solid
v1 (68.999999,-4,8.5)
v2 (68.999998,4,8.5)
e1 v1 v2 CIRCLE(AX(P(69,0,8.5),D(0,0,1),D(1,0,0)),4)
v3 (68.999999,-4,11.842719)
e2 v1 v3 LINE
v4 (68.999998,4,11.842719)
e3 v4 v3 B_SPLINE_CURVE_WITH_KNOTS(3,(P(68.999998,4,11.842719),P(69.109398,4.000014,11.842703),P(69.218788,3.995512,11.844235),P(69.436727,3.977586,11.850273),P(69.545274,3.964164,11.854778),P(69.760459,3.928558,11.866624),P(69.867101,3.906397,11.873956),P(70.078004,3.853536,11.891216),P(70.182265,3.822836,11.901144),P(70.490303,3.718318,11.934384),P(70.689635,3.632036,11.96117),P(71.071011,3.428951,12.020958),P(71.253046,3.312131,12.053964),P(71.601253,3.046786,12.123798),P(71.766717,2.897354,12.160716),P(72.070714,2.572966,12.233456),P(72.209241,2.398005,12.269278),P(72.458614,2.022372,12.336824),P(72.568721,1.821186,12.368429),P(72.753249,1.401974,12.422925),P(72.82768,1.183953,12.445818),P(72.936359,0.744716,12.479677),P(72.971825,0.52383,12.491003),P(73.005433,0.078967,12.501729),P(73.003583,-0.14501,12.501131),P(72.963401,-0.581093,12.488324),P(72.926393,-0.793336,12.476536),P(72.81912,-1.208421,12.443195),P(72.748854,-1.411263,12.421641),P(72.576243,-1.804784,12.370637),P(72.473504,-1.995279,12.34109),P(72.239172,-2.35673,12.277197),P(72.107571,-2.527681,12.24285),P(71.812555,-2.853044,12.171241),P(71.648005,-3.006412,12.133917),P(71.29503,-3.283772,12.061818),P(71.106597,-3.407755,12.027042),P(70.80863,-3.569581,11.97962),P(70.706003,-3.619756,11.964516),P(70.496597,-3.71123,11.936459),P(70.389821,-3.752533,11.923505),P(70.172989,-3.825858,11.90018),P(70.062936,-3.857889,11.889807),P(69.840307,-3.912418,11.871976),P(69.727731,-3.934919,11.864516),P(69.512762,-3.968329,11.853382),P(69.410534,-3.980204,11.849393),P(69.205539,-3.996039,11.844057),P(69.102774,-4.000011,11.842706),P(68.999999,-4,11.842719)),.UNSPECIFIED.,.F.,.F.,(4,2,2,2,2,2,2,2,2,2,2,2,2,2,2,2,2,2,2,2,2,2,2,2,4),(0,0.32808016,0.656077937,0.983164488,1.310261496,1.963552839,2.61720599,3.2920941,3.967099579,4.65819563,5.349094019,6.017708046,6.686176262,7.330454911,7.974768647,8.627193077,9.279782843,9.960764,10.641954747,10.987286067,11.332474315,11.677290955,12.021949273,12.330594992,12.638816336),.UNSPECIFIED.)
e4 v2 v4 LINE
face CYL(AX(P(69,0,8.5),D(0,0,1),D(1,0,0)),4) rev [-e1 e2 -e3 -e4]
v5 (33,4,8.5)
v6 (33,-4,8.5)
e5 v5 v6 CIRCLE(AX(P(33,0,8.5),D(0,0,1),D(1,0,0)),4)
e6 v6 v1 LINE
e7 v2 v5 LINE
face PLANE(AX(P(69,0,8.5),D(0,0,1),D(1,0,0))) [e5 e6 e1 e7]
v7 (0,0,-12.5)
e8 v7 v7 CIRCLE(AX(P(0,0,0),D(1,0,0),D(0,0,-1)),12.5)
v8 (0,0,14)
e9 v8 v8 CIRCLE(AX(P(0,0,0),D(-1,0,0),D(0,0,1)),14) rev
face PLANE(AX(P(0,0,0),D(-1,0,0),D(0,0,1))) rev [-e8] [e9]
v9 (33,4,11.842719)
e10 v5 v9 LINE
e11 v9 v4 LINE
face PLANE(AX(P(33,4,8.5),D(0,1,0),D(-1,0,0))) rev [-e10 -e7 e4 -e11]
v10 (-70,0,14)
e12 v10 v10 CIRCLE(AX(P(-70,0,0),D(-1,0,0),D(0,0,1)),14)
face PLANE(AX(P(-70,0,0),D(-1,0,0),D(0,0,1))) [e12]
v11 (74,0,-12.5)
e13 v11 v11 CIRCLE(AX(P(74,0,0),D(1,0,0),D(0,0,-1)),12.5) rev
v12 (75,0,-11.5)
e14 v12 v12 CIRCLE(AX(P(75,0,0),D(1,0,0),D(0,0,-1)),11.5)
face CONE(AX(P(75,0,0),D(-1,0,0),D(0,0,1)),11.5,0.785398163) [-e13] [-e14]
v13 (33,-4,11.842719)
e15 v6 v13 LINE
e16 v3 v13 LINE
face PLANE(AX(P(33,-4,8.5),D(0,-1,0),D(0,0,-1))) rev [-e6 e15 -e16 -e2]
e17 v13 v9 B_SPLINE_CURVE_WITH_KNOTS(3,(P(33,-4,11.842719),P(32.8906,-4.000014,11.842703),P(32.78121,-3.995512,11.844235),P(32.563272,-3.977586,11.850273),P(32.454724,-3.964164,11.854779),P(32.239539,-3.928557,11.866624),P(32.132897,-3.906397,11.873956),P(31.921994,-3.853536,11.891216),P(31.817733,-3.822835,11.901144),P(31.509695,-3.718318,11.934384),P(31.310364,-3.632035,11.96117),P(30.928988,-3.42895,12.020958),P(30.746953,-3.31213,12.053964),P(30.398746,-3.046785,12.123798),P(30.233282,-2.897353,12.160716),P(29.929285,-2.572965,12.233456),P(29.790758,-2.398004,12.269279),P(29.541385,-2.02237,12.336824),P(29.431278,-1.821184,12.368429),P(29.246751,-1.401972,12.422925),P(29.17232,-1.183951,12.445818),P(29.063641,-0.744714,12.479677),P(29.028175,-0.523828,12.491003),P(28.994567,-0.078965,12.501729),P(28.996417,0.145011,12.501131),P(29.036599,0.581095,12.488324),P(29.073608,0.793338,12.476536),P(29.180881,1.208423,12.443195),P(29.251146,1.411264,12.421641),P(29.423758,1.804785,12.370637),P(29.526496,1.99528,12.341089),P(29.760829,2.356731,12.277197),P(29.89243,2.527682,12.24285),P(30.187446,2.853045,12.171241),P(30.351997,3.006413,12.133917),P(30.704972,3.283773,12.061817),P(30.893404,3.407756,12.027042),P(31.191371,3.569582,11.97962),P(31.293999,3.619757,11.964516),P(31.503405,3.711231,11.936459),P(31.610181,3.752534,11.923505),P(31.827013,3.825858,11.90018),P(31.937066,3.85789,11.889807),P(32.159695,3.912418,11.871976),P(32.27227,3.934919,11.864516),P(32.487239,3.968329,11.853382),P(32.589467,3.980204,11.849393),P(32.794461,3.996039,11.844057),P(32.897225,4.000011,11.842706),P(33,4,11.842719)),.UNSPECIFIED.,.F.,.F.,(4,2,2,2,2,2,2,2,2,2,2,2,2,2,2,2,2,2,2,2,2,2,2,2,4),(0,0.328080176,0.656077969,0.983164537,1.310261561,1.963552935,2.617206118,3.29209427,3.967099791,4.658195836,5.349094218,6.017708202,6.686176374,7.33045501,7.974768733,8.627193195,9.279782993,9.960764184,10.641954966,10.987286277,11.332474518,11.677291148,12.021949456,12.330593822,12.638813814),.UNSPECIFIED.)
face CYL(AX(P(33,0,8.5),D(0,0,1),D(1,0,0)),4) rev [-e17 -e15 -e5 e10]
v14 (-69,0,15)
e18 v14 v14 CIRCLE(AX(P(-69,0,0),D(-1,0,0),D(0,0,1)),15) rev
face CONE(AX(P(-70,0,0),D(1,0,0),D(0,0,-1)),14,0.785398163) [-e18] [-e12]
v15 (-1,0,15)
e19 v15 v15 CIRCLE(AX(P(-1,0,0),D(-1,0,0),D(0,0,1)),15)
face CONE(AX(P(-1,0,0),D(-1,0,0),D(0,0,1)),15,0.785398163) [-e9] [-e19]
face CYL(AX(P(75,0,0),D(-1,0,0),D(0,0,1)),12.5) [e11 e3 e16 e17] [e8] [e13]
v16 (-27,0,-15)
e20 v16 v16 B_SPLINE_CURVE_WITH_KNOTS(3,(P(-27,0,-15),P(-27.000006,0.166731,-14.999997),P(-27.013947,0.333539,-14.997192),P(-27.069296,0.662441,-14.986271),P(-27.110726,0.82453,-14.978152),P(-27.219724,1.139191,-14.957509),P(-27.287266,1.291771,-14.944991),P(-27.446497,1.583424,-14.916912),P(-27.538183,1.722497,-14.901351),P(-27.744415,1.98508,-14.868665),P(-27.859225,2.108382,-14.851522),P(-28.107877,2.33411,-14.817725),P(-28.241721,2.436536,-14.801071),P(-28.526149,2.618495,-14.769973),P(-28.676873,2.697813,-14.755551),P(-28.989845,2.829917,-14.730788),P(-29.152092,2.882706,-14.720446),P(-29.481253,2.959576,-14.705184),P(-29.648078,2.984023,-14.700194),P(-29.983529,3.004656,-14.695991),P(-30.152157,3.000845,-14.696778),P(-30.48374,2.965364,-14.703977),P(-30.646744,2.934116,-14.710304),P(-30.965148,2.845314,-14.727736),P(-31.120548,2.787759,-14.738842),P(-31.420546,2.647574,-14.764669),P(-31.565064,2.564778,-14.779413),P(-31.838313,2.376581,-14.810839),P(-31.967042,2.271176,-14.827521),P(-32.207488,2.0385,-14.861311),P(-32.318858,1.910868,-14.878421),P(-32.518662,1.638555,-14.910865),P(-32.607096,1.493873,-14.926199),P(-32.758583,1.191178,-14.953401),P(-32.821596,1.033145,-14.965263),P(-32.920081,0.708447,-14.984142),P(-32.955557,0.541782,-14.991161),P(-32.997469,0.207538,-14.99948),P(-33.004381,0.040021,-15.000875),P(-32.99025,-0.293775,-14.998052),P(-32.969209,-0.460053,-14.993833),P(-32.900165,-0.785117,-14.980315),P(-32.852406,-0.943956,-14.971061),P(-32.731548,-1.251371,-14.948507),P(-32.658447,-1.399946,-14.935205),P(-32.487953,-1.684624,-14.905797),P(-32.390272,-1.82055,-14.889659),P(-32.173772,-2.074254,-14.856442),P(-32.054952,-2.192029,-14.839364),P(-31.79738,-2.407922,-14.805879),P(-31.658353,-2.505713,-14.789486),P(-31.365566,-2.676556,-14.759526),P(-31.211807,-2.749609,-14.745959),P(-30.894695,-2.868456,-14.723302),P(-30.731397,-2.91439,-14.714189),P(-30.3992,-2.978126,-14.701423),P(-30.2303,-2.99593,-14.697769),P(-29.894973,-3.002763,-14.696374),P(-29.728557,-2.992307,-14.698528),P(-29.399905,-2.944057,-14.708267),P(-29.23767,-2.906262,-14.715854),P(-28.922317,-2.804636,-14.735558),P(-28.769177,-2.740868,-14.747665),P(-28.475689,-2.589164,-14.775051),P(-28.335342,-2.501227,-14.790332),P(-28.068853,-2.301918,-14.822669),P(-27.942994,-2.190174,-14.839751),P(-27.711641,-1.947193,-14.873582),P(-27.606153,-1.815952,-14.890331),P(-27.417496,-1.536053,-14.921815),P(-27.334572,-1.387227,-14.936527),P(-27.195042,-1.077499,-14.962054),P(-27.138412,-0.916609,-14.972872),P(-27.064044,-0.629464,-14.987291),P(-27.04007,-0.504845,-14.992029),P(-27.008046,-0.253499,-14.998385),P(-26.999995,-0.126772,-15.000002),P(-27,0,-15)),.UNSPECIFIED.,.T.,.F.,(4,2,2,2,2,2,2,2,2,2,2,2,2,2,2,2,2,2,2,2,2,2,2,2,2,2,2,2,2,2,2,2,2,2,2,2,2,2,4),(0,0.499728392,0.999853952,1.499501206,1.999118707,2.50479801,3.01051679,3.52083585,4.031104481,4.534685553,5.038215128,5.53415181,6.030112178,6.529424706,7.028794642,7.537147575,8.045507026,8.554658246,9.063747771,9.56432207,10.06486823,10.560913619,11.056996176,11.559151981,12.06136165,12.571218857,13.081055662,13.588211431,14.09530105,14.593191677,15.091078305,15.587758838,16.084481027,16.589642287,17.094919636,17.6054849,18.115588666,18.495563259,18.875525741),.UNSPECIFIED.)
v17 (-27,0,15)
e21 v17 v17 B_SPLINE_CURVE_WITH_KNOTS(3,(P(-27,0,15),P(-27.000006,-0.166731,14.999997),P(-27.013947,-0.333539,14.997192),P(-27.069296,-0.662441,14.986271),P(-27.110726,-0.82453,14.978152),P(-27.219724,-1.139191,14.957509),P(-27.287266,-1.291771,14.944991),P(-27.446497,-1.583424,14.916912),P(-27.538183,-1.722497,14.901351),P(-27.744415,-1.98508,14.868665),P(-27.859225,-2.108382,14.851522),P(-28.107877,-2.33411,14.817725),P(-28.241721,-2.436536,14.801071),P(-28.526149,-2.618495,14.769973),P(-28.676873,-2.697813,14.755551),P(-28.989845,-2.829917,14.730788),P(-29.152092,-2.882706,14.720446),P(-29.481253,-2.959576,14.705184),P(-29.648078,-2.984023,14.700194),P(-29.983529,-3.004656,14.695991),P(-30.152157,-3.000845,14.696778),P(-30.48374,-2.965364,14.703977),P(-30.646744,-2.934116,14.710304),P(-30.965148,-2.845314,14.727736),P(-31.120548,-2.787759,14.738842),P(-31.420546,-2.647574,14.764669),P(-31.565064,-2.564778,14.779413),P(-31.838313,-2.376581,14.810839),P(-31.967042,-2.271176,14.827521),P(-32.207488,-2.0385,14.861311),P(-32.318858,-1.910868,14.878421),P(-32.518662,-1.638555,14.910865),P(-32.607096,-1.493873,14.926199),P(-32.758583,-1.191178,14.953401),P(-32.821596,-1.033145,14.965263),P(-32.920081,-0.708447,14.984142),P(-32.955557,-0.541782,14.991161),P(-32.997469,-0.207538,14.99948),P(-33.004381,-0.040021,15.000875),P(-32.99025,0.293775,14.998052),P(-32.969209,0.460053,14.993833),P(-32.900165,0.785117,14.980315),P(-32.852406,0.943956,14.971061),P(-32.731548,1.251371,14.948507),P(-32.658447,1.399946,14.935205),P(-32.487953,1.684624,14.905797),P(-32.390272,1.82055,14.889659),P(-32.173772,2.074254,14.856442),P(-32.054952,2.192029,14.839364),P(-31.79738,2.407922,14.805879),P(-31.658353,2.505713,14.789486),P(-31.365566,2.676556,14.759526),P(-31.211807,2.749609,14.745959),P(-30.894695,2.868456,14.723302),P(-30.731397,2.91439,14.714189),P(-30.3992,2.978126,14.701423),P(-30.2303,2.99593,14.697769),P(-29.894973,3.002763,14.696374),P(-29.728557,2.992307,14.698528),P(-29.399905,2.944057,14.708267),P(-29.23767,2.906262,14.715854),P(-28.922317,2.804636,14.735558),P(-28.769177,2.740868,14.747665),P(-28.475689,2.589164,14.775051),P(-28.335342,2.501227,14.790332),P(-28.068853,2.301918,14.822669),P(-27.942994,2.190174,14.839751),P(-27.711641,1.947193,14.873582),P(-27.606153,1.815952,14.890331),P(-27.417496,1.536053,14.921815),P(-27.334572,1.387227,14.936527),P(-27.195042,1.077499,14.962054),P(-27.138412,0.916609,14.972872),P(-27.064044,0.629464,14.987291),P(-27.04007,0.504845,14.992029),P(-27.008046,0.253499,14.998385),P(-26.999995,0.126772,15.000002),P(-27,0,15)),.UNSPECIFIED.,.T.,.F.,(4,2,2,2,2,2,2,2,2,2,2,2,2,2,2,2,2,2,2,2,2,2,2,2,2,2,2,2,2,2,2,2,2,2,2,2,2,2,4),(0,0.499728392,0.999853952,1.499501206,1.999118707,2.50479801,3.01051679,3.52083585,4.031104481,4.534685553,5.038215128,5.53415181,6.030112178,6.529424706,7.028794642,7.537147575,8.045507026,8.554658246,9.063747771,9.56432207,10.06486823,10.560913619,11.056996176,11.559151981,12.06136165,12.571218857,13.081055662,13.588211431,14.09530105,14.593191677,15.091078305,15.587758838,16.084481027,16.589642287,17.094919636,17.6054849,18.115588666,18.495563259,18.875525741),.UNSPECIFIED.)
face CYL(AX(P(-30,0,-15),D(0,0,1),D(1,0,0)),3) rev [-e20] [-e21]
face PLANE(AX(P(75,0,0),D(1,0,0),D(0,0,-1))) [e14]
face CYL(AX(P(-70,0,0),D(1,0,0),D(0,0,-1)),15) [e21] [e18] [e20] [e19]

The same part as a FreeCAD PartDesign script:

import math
import FreeCAD as App
import Part
import Sketcher


def edges_at(feature, points):
    """Names of the edges that pass closest to the given points."""
    edges = feature.Shape.Edges
    near = lambda p: min(range(len(edges)), key=lambda i: edges[i].distToShape(Part.Vertex(*p))[0])
    return sorted({f"Edge{near(p) + 1}" for p in points})

doc = App.newDocument("Part")
params = doc.addObject("Spreadsheet::Sheet", "Params")
for row, (alias, value) in enumerate([
    ("sketch1_diameter", "25 mm"),
    ("pad1_length", "75 mm"),
    ("sketch2_diameter", "30 mm"),
    ("pad2_length", "70 mm"),
    ("chamfer_size", "1 mm"),
    ("sketch3_radius", "4 mm"),
    ("sketch3_width", "35.999998 mm"),
    ("pocket1_length", "4 mm"),
    ("sketch4_diameter", "6 mm"),
], start=1):
    params.set(f"A{row}", alias)
    params.set(f"B{row}", "=" + value)
    params.setAlias(f"B{row}", alias)

body = doc.addObject("PartDesign::Body", "Body")

# Sketch on YZ plane
sketch1 = doc.addObject("Sketcher::SketchObject", "Sketch")
body.addObject(sketch1)
sketch1.AttachmentSupport = (doc.YZ_Plane, [""])
sketch1.MapMode = "FlatFace"
sketch1.addGeometry(Part.Circle(App.Vector(0, 0, 0), App.Vector(0, 0, 1), 12), False)
sketch1.addConstraint([
    Sketcher.Constraint("Coincident", 0, 3, -1, 1),
    Sketcher.Constraint("Diameter", 0, 25.0),
])
sketch1.setExpression("Constraints[1]", "Params.sketch1_diameter")
pad1 = doc.addObject("PartDesign::Pad", "Pad")
body.addObject(pad1)
pad1.Profile = sketch1
pad1.setExpression("Length", "Params.pad1_length")

# Sketch on YZ plane
sketch2 = doc.addObject("Sketcher::SketchObject", "Sketch001")
body.addObject(sketch2)
sketch2.AttachmentSupport = (doc.YZ_Plane, [""])
sketch2.MapMode = "FlatFace"
sketch2.addGeometry(Part.Circle(App.Vector(0, 0, 0), App.Vector(0, 0, 1), 15), False)
sketch2.addConstraint([
    Sketcher.Constraint("Coincident", 0, 3, -1, 1),
    Sketcher.Constraint("Diameter", 0, 30.0),
])
sketch2.setExpression("Constraints[1]", "Params.sketch2_diameter")
pad2 = doc.addObject("PartDesign::Pad", "Pad001")
body.addObject(pad2)
pad2.Profile = sketch2
pad2.setExpression("Length", "Params.pad2_length")
pad2.Reversed = True
doc.recompute()

chamfer = doc.addObject("PartDesign::Chamfer", "Chamfer")
body.addObject(chamfer)
chamfer.Base = (pad2, edges_at(pad2, [(75, 0, 12.5), (0, 0, -15), (-70, 0, -15)]))
chamfer.setExpression("Size", "Params.chamfer_size")

# Sketch on XY plane
sketch3 = doc.addObject("Sketcher::SketchObject", "Sketch002")
body.addObject(sketch3)
sketch3.AttachmentSupport = (doc.XY_Plane, [""])
sketch3.MapMode = "FlatFace"
sketch3.AttachmentOffset = App.Placement(App.Vector(0, 0, 12.5), App.Rotation())
sketch3.addGeometry([
    Part.LineSegment(App.Vector(69, 4, 0), App.Vector(33, 4, 0)),
    Part.ArcOfCircle(Part.Circle(App.Vector(33, 0, 0), App.Vector(0, 0, 1), 4), math.radians(90), math.radians(270)),
    Part.LineSegment(App.Vector(33, -4, 0), App.Vector(69, -4, 0)),
    Part.ArcOfCircle(Part.Circle(App.Vector(69, 0, 0), App.Vector(0, 0, 1), 4), math.radians(-90), math.radians(90)),
], False)
sketch3.addConstraint([
    Sketcher.Constraint("Tangent", 0, 2, 1, 1),
    Sketcher.Constraint("Tangent", 1, 2, 2, 1),
    Sketcher.Constraint("Tangent", 2, 2, 3, 1),
    Sketcher.Constraint("Tangent", 3, 2, 0, 1),
    Sketcher.Constraint("Horizontal", 0),
    Sketcher.Constraint("Horizontal", 2),
    Sketcher.Constraint("PointOnObject", 1, 3, -1),
    Sketcher.Constraint("Radius", 1, 4.0),
    Sketcher.Constraint("DistanceX", 0, 2, 0, 1, 35.999998),
    Sketcher.Constraint("DistanceX", -1, 1, 1, 3, 33.0),
])
sketch3.setExpression("Constraints[7]", "Params.sketch3_radius")
sketch3.setExpression("Constraints[8]", "Params.sketch3_width")
pocket1 = doc.addObject("PartDesign::Pocket", "Pocket")
body.addObject(pocket1)
pocket1.Profile = sketch3
pocket1.setExpression("Length", "Params.pocket1_length")

# Sketch on XY plane
sketch4 = doc.addObject("Sketcher::SketchObject", "Sketch003")
body.addObject(sketch4)
sketch4.AttachmentSupport = (doc.XY_Plane, [""])
sketch4.MapMode = "FlatFace"
sketch4.addGeometry(Part.Circle(App.Vector(-30, 0, 0), App.Vector(0, 0, 1), 3), False)
sketch4.addConstraint([
    Sketcher.Constraint("PointOnObject", 0, 3, -1),
    Sketcher.Constraint("Diameter", 0, 6.0),
    Sketcher.Constraint("DistanceX", 0, 3, -1, 1, 30.0),
])
sketch4.setExpression("Constraints[1]", "Params.sketch4_diameter")
pocket2 = doc.addObject("PartDesign::Pocket", "Pocket001")
body.addObject(pocket2)
pocket2.Profile = sketch4
pocket2.Type = "ThroughAll"
pocket2.Midplane = True

doc.recompute()
